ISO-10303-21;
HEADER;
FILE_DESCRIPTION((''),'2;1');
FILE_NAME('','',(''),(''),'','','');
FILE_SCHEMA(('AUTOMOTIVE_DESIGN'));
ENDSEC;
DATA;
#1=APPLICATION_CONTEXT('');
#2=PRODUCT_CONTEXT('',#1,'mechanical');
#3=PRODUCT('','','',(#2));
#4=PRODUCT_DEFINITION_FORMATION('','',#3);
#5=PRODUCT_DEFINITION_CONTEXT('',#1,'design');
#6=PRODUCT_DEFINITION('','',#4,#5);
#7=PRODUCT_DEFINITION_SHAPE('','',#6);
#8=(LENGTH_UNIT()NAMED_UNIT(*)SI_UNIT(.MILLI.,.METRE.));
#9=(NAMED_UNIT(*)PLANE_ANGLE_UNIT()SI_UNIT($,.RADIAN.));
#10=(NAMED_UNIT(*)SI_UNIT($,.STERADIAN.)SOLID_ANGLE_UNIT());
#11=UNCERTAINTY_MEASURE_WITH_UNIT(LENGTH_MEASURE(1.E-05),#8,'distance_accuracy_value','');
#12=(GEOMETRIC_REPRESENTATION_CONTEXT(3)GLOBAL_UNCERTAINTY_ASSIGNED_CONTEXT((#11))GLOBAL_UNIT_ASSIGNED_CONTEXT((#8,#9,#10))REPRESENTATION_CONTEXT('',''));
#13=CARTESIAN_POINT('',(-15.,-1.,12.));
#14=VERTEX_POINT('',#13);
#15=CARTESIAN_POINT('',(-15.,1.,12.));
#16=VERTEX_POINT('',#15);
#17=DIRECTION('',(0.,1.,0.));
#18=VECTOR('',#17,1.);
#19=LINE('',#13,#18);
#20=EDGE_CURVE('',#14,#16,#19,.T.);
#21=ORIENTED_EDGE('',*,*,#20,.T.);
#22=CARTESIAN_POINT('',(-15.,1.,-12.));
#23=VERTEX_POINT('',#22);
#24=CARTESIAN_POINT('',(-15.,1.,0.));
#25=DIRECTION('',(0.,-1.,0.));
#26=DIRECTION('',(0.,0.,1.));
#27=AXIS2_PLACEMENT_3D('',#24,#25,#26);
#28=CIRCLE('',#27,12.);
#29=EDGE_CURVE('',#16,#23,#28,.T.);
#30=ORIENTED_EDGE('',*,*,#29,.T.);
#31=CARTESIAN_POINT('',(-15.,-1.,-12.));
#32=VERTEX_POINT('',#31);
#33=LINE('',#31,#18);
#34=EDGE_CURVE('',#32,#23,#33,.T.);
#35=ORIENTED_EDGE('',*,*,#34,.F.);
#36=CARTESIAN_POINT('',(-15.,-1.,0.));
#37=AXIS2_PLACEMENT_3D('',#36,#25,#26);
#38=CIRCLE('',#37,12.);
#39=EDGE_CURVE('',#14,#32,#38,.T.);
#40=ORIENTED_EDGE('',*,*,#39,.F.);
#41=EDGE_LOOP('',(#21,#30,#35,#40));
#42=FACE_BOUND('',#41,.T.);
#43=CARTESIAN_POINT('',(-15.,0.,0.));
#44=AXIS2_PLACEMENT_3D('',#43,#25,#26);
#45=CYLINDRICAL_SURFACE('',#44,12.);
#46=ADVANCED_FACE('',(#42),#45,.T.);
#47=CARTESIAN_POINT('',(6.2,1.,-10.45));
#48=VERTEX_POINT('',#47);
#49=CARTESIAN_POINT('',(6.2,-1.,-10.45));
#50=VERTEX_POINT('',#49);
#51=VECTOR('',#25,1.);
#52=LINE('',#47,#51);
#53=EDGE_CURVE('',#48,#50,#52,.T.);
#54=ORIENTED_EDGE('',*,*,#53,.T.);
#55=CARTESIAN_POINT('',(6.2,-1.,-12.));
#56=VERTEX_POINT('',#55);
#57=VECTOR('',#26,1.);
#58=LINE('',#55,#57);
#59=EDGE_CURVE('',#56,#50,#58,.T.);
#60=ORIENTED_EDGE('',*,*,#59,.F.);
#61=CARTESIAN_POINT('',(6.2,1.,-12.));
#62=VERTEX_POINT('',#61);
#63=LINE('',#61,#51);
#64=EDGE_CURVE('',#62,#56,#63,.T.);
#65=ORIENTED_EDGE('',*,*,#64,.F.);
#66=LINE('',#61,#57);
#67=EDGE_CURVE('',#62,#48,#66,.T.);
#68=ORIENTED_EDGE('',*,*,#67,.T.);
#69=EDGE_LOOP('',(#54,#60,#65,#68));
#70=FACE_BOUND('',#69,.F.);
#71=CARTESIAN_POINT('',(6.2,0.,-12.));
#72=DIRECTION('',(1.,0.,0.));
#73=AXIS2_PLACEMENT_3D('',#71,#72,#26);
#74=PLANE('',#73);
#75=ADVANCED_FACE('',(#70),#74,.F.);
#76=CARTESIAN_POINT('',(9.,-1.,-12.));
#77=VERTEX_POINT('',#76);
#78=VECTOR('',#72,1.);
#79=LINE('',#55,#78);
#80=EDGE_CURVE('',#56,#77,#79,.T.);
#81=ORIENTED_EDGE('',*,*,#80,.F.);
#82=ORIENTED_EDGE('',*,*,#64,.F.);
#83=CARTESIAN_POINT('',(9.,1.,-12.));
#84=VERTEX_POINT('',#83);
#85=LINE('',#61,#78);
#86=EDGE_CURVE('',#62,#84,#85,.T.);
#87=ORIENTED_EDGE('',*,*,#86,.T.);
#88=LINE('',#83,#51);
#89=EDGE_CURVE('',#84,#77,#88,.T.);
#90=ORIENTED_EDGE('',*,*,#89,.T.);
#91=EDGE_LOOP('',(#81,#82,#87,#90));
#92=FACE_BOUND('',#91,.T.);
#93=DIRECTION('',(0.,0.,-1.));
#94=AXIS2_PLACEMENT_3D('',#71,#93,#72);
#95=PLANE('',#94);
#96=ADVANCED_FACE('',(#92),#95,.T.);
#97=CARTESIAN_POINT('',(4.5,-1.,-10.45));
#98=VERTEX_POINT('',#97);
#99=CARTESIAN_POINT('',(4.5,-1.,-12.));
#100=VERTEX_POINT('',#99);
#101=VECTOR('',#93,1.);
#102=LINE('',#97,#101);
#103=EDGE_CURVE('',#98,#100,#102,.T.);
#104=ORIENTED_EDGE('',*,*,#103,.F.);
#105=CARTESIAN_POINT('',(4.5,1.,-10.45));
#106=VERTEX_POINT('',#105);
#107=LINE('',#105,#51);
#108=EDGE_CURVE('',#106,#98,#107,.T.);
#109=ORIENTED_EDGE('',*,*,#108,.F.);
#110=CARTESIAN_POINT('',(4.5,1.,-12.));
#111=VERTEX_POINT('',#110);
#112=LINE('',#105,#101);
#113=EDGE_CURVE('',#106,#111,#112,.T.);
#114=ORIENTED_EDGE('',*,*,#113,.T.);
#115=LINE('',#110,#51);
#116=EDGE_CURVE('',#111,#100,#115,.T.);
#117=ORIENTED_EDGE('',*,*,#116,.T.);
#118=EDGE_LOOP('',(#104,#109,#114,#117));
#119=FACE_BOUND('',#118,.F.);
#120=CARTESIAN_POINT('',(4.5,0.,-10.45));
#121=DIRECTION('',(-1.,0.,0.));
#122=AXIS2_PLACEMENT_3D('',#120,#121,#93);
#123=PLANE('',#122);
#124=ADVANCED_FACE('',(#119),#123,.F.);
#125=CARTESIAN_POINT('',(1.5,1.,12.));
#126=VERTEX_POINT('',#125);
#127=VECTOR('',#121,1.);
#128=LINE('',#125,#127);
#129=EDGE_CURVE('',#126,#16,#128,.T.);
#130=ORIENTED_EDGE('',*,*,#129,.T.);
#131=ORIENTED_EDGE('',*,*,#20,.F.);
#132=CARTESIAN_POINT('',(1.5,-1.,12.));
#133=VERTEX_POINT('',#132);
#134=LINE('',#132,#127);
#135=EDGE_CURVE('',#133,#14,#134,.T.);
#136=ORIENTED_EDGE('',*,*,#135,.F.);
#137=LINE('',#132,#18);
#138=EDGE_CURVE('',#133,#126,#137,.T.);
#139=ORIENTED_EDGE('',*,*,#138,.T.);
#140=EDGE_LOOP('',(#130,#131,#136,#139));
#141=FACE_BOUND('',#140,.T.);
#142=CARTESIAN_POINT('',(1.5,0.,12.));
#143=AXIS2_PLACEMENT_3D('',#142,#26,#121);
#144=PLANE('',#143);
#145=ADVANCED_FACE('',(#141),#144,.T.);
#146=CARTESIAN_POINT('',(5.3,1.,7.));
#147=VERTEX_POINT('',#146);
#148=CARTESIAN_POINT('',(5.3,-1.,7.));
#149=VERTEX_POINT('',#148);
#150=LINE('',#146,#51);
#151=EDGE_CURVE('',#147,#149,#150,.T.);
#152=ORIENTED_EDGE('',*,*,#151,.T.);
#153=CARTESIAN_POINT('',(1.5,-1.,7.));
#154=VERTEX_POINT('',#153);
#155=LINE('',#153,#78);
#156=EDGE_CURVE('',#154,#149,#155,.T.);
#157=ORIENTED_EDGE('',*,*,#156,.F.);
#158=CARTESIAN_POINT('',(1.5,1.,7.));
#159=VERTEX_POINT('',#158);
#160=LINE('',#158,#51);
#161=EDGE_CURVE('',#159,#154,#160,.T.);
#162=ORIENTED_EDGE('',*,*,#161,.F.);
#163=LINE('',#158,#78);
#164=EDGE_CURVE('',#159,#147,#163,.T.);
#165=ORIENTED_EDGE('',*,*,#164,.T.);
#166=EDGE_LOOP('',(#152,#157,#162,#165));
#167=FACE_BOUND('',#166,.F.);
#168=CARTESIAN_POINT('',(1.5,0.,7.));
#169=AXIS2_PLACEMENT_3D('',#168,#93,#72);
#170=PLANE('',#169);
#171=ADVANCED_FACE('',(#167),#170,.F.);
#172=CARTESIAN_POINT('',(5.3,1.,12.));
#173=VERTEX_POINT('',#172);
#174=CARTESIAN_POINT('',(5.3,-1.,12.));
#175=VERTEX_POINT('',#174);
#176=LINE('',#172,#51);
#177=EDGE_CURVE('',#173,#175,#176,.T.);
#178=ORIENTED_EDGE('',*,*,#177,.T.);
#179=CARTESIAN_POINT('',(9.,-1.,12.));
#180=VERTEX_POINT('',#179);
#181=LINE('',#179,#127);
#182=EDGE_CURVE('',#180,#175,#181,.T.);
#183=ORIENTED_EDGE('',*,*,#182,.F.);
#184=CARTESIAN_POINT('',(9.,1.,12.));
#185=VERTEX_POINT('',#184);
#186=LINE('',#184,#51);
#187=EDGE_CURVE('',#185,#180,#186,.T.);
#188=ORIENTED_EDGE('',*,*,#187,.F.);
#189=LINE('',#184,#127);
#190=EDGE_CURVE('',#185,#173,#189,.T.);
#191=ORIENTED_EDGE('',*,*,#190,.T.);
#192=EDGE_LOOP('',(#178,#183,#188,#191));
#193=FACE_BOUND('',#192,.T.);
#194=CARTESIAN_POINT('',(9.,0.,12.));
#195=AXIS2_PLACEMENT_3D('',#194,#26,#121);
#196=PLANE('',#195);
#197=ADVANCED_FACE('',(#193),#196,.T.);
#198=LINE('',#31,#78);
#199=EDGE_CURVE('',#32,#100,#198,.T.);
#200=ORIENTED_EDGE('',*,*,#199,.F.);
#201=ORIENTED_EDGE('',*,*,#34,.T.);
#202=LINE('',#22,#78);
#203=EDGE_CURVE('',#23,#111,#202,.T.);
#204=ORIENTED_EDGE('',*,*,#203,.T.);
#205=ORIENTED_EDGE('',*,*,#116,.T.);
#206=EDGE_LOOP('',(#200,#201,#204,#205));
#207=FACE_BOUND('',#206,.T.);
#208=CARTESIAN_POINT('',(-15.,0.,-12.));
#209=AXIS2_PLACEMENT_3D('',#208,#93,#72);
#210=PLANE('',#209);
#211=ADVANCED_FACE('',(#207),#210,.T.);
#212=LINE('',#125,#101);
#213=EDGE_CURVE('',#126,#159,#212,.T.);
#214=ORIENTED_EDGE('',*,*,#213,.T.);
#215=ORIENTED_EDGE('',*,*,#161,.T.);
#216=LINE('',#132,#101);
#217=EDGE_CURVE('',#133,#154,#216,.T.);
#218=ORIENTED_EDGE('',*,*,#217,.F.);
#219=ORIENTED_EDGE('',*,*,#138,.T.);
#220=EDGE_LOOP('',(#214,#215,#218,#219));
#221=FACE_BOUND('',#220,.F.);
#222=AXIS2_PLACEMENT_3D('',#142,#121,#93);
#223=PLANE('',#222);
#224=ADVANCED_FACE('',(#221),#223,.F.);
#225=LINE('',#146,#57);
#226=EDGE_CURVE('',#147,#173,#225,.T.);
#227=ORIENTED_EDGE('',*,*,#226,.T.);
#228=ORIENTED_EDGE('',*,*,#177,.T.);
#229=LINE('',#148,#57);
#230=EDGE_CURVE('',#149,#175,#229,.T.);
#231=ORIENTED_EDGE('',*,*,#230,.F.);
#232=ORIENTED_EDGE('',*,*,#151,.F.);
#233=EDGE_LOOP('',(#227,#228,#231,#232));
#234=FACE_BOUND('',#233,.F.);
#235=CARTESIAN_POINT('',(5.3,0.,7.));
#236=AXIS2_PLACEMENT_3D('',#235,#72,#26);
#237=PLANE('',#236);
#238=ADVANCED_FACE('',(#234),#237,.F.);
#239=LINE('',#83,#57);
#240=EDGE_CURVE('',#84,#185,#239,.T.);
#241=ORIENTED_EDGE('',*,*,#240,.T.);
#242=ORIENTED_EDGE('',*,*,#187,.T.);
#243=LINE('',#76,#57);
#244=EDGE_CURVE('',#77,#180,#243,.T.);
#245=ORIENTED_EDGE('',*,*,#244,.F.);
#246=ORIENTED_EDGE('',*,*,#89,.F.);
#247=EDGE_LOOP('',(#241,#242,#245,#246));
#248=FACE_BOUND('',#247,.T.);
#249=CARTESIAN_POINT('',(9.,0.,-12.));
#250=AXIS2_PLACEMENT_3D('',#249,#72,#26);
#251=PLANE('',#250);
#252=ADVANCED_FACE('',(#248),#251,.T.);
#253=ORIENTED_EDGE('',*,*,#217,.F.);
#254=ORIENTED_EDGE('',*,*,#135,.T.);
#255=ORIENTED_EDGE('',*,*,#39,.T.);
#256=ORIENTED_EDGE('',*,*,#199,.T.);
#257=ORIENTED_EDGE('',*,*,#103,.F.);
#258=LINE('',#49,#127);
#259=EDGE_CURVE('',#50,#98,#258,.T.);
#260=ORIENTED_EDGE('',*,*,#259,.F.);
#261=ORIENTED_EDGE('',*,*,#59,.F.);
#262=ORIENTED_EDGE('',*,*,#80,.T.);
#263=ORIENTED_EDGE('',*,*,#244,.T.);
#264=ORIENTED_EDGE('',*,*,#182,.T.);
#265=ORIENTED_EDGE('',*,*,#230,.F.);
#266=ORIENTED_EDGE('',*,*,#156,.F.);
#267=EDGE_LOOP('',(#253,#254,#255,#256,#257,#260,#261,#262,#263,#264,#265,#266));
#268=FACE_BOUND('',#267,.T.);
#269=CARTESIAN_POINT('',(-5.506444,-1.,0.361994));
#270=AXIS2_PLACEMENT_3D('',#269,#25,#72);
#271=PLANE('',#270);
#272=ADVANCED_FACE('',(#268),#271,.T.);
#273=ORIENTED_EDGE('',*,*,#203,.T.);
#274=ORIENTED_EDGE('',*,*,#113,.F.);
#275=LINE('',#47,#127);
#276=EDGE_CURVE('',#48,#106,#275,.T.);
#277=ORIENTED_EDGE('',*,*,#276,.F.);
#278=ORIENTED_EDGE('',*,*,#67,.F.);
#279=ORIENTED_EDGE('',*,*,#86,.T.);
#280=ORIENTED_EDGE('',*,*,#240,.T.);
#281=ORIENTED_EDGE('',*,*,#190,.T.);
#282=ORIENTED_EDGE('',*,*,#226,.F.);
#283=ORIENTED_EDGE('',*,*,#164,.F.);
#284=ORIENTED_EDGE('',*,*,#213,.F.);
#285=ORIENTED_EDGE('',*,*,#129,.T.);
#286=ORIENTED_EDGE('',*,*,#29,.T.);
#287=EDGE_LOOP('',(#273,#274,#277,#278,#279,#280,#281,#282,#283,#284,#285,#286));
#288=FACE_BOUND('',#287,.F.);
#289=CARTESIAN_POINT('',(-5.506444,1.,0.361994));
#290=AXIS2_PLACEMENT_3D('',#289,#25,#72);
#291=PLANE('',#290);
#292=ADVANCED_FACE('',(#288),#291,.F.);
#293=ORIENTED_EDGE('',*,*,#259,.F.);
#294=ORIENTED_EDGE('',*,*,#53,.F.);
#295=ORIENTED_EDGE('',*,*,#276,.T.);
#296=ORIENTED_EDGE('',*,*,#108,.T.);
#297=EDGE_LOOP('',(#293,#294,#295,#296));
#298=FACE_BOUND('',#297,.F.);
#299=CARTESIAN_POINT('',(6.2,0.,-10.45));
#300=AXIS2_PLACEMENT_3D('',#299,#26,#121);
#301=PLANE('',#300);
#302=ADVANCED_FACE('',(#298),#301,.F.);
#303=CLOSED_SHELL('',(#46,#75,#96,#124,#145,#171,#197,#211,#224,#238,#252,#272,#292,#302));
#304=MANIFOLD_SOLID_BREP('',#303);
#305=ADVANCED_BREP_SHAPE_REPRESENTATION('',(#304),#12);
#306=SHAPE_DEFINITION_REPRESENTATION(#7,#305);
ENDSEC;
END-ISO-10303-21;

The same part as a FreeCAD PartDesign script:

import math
import FreeCAD as App
import Part
import Sketcher

V = App.Vector
Q = App.Units.Quantity

doc = App.newDocument("Part")
body = doc.addObject("PartDesign::Body", "Body")

# Sketch on XZ plane
sketch1 = body.newObject("Sketcher::SketchObject", "Sketch")
sketch1.AttachmentSupport = (doc.getObject("XZ_Plane"), [""])
sketch1.MapMode = "FlatFace"
sketch1.addGeometry([
    Part.LineSegment(V(-15, -12, 0), V(4.5, -12, 0)),  # 0
    Part.LineSegment(V(4.5, -12, 0), V(4.5, -10.4, 0)),  # 1
    Part.LineSegment(V(4.5, -10.4, 0), V(6.2, -10.4, 0)),  # 2
    Part.LineSegment(V(6.2, -10.4, 0), V(6.2, -12, 0)),  # 3
    Part.LineSegment(V(6.2, -12, 0), V(9, -12, 0)),  # 4
    Part.LineSegment(V(9, -12, 0), V(9, 12, 0)),  # 5
    Part.LineSegment(V(9, 12, 0), V(5.3, 12, 0)),  # 6
    Part.LineSegment(V(5.3, 12, 0), V(5.3, 7, 0)),  # 7
    Part.LineSegment(V(5.3, 7, 0), V(1.5, 7, 0)),  # 8
    Part.LineSegment(V(1.5, 7, 0), V(1.5, 12, 0)),  # 9
    Part.LineSegment(V(1.5, 12, 0), V(-15, 12, 0)),  # 10
    Part.ArcOfCircle(Part.Circle(V(-15, 0, 0), V(0, 0, 1), 12), math.radians(90), math.radians(270)),  # 11
], False)
sketch1.addConstraint([
    Sketcher.Constraint("Coincident", 0, 2, 1, 1),
    Sketcher.Constraint("Coincident", 1, 2, 2, 1),
    Sketcher.Constraint("Coincident", 2, 2, 3, 1),
    Sketcher.Constraint("Coincident", 3, 2, 4, 1),
    Sketcher.Constraint("Coincident", 4, 2, 5, 1),
    Sketcher.Constraint("Coincident", 5, 2, 6, 1),
    Sketcher.Constraint("Coincident", 6, 2, 7, 1),
    Sketcher.Constraint("Coincident", 7, 2, 8, 1),
    Sketcher.Constraint("Coincident", 8, 2, 9, 1),
    Sketcher.Constraint("Coincident", 9, 2, 10, 1),
    Sketcher.Constraint("Tangent", 10, 2, 11, 1),
    Sketcher.Constraint("Tangent", 11, 2, 0, 1),
    Sketcher.Constraint("Horizontal", 0),
    Sketcher.Constraint("Vertical", 1),
    Sketcher.Constraint("Horizontal", 2),
    Sketcher.Constraint("Vertical", 3),
    Sketcher.Constraint("Horizontal", 4),
    Sketcher.Constraint("Vertical", 5),
    Sketcher.Constraint("Horizontal", 6),
    Sketcher.Constraint("Vertical", 7),
    Sketcher.Constraint("Horizontal", 8),
    Sketcher.Constraint("Vertical", 9),
    Sketcher.Constraint("Horizontal", 10),
    Sketcher.Constraint("PointOnObject", 11, 3, -1),
    Sketcher.Constraint("Horizontal", 0, 2, 3, 2),
    Sketcher.Constraint("Horizontal", 6, 2, 9, 2),
    Sketcher.Constraint("Radius", 11, Q("12 mm")),
    Sketcher.Constraint("DistanceY", 7, 2, 7, 1, Q("5 mm")),
    Sketcher.Constraint("DistanceX", 0, 1, 0, 2, Q("19.5 mm")),
    Sketcher.Constraint("DistanceX", 2, 1, 2, 2, Q("1.7 mm")),
    Sketcher.Constraint("DistanceX", 4, 1, 4, 2, Q("2.8 mm")),
    Sketcher.Constraint("DistanceX", 6, 2, 6, 1, Q("3.7 mm")),
    Sketcher.Constraint("DistanceX", 8, 2, 8, 1, Q("3.8 mm")),
    Sketcher.Constraint("DistanceX", 11, 3, -1, 1, Q("15 mm")),
    Sketcher.Constraint("DistanceY", 1, 1, 1, 2, Q("1.55 mm")),
])
pad1 = body.newObject("PartDesign::Pad", "Pad")
pad1.Profile = sketch1
pad1.Length = 2
pad1.Midplane = True

doc.recompute()
